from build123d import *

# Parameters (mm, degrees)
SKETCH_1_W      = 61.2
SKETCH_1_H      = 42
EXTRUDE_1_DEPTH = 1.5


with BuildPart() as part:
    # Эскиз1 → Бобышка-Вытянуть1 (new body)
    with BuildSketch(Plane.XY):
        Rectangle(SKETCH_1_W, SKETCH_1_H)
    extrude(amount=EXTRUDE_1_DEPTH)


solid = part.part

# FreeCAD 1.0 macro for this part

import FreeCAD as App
import Part
import Sketcher
from FreeCAD import Vector

doc = App.newDocument("Part")
body = doc.addObject("PartDesign::Body", "Body")

# Sketch on XY plane
sketch1 = doc.addObject("Sketcher::SketchObject", "Sketch")
body.addObject(sketch1)
sketch1.AttachmentSupport = (doc.XY_Plane, [""])
sketch1.MapMode = "FlatFace"
sketch1.addGeometry([
    Part.LineSegment(Vector(-30.6, 21, 0), Vector(-30.6, -21, 0)),
    Part.LineSegment(Vector(-30.6, -21, 0), Vector(30.6, -21, 0)),
    Part.LineSegment(Vector(30.6, -21, 0), Vector(30.6, 21, 0)),
    Part.LineSegment(Vector(30.6, 21, 0), Vector(-30.6, 21, 0)),
], False)
sketch1.addConstraint([
    Sketcher.Constraint("Coincident", 0, 2, 1, 1),
    Sketcher.Constraint("Coincident", 1, 2, 2, 1),
    Sketcher.Constraint("Coincident", 2, 2, 3, 1),
    Sketcher.Constraint("Coincident", 3, 2, 0, 1),
    Sketcher.Constraint("Vertical", 0),
    Sketcher.Constraint("Horizontal", 1),
    Sketcher.Constraint("Vertical", 2),
    Sketcher.Constraint("Horizontal", 3),
    Sketcher.Constraint("Symmetric", 0, 2, 2, 2, -1, 1),
    Sketcher.Constraint("DistanceY", 0, 2, 0, 1, 42.0),
    Sketcher.Constraint("DistanceX", 1, 1, 1, 2, 61.2),
])
pad1 = doc.addObject("PartDesign::Pad", "Pad")
body.addObject(pad1)
pad1.Profile = sketch1
pad1.Length = 1.5

doc.recompute()
